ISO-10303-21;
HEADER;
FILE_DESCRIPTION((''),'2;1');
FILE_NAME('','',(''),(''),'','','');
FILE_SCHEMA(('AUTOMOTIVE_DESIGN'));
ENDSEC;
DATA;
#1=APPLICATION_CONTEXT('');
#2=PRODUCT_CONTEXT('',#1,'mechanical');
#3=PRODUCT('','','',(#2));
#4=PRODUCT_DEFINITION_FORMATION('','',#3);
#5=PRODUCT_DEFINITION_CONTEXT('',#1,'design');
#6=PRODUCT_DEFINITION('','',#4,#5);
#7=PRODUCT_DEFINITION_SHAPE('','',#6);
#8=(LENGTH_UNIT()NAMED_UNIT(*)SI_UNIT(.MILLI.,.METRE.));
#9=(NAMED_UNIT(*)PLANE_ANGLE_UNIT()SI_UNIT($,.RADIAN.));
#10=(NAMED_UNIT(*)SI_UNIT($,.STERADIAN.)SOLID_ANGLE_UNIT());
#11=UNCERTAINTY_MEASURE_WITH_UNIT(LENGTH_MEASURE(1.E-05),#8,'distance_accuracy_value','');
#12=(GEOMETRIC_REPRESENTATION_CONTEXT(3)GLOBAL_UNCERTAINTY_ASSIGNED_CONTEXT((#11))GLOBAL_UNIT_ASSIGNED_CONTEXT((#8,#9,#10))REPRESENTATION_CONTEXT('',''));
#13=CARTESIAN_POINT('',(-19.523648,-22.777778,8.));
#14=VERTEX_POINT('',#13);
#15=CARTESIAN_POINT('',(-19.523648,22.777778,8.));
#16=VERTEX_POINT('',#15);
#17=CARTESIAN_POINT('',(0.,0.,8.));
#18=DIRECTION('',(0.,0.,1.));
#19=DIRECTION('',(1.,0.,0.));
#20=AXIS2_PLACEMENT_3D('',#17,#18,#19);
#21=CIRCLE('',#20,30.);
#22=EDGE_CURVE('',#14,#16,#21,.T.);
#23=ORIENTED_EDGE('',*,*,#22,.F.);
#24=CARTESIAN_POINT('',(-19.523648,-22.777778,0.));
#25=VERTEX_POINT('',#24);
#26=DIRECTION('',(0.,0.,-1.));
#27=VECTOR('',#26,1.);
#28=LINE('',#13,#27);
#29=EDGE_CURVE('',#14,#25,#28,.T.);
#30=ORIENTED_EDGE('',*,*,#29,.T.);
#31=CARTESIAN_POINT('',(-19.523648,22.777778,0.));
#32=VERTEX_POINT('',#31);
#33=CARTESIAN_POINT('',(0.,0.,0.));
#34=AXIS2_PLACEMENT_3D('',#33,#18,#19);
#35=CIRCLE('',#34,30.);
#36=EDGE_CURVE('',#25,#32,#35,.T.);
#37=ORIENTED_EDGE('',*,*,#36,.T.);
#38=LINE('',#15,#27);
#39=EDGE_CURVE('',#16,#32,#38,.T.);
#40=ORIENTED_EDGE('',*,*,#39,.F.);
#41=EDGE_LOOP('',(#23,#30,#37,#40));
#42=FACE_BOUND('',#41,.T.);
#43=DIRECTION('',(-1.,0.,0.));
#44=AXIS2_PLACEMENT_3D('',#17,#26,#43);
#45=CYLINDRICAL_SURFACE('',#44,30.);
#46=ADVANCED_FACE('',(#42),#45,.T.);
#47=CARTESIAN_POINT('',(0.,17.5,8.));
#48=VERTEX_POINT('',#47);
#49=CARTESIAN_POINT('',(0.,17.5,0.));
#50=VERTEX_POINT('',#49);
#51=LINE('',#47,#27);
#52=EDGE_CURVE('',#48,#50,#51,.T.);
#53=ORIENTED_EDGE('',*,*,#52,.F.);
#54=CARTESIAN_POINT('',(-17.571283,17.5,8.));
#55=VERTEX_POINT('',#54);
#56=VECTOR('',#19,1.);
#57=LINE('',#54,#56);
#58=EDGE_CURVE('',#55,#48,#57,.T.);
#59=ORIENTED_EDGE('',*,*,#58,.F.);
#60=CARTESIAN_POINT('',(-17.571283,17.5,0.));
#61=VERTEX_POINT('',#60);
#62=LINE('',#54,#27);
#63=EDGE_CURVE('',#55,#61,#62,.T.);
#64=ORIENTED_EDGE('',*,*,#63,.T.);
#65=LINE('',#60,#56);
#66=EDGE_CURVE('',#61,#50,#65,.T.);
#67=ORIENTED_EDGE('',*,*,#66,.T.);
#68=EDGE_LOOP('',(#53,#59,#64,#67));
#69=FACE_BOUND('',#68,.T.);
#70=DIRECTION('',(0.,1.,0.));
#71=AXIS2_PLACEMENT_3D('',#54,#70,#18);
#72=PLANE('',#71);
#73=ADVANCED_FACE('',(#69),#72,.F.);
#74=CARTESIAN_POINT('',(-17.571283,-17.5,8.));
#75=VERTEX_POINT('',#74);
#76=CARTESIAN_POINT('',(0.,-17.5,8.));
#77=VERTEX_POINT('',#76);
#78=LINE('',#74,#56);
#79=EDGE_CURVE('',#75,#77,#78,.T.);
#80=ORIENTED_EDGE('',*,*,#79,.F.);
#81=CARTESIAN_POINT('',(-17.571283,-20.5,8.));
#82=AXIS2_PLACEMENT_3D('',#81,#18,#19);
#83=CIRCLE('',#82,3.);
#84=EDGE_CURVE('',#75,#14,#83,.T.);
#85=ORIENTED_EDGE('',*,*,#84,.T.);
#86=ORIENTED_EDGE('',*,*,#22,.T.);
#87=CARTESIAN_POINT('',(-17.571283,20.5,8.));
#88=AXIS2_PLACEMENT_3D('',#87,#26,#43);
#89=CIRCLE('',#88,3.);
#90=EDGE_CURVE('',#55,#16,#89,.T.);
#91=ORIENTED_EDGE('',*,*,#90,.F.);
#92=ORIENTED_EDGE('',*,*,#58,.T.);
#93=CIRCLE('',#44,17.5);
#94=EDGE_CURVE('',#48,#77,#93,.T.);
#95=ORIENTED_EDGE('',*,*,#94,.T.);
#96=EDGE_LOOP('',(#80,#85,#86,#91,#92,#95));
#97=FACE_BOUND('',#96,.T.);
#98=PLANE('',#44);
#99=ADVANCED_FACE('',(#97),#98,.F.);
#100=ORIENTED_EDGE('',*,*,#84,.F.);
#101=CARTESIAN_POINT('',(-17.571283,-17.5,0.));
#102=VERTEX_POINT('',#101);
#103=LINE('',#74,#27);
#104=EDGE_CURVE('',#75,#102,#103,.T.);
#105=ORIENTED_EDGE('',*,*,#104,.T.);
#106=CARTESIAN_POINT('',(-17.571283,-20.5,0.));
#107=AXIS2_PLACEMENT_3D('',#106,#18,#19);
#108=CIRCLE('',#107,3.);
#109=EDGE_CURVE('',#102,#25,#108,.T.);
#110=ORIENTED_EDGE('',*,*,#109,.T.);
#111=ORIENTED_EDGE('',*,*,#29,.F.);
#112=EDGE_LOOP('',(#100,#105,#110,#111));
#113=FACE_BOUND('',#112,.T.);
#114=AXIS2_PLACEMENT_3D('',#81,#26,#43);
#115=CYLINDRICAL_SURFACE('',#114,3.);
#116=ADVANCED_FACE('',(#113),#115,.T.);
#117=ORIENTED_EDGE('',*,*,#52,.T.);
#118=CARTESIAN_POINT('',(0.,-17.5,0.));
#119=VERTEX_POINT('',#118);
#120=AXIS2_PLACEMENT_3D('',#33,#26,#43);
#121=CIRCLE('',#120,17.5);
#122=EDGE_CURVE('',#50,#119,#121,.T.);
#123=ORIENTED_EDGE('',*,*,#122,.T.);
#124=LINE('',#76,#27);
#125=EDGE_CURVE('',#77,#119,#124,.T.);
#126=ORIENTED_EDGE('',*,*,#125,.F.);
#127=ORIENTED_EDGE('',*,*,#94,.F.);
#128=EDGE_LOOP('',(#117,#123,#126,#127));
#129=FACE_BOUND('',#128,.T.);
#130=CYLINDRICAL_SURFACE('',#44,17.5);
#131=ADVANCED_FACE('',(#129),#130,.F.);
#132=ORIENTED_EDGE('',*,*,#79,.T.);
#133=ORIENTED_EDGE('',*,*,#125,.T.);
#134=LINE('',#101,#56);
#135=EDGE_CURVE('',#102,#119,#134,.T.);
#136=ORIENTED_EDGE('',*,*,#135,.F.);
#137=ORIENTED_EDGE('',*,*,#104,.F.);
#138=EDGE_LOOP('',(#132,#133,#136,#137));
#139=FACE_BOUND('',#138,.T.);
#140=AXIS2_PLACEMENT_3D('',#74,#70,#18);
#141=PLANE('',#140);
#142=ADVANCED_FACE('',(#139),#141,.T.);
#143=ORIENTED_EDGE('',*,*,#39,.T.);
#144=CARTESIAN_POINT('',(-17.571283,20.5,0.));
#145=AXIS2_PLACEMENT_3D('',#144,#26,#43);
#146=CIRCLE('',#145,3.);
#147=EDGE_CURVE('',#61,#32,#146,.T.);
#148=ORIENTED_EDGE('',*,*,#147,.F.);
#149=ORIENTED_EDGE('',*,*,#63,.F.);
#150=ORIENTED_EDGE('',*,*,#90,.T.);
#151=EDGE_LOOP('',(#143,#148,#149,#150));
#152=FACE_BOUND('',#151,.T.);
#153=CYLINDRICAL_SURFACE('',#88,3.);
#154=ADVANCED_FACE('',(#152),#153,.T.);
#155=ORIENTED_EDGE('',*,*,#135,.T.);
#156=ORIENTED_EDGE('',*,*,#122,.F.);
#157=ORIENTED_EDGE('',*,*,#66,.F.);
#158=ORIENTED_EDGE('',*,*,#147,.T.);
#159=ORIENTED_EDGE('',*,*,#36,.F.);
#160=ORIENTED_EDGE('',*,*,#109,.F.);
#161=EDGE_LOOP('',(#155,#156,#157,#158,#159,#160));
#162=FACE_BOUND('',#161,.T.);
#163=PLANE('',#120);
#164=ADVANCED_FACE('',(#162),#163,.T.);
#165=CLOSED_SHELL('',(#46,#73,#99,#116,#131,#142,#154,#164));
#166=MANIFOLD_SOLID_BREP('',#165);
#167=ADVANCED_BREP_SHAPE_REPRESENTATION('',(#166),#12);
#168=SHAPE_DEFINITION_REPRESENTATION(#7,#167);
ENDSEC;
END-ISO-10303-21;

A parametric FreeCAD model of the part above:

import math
import FreeCAD as App
import Part
import Sketcher

doc = App.newDocument("Part")
body = doc.addObject("PartDesign::Body", "Body")

# Sketch on XY plane
sketch1 = doc.addObject("Sketcher::SketchObject", "Sketch")
body.addObject(sketch1)
sketch1.AttachmentSupport = (doc.XY_Plane, [""])
sketch1.MapMode = "FlatFace"
sketch1.addGeometry(Part.LineSegment(App.Vector(0, -17.5, 0), App.Vector(-17.6, -17.5, 0)), False)
sketch1.addGeometry(Part.ArcOfCircle(Part.Circle(App.Vector(-17.6, -20.5, 0), App.Vector(0, 0, 1), 3), math.radians(90), math.radians(229)), False)
sketch1.addGeometry(Part.ArcOfCircle(Part.Circle(App.Vector(0, 0, 0), App.Vector(0, 0, 1), 30), math.radians(-131), math.radians(131)), False)
sketch1.addGeometry(Part.ArcOfCircle(Part.Circle(App.Vector(-17.6, 20.5, 0), App.Vector(0, 0, 1), 3), math.radians(131), math.radians(270)), False)
sketch1.addGeometry(Part.LineSegment(App.Vector(-17.6, 17.5, 0), App.Vector(0, 17.5, 0)), False)
sketch1.addGeometry(Part.ArcOfCircle(Part.Circle(App.Vector(0, 0, 0), App.Vector(0, 0, 1), 17.5), math.radians(-90), math.radians(90)), False)
sketch1.addConstraint(Sketcher.Constraint("Tangent", 0, 2, 1, 1))
sketch1.addConstraint(Sketcher.Constraint("Tangent", 1, 2, 2, 1))
sketch1.addConstraint(Sketcher.Constraint("Tangent", 2, 2, 3, 1))
sketch1.addConstraint(Sketcher.Constraint("Tangent", 3, 2, 4, 1))
sketch1.addConstraint(Sketcher.Constraint("Tangent", 4, 2, 5, 2))
sketch1.addConstraint(Sketcher.Constraint("Tangent", 5, 1, 0, 1))
sketch1.addConstraint(Sketcher.Constraint("Horizontal", 0))
sketch1.addConstraint(Sketcher.Constraint("Horizontal", 4))
sketch1.addConstraint(Sketcher.Constraint("Coincident", 2, 3, -1, 1))
sketch1.addConstraint(Sketcher.Constraint("Coincident", 5, 3, -1, 1))
sketch1.addConstraint(Sketcher.Constraint("Equal", 1, 3))
sketch1.addConstraint(Sketcher.Constraint("Radius", 1, 3.0))
sketch1.addConstraint(Sketcher.Constraint("Radius", 2, 30.0))
sketch1.addConstraint(Sketcher.Constraint("Radius", 5, 17.5))
pad1 = doc.addObject("PartDesign::Pad", "Pad")
body.addObject(pad1)
pad1.Profile = sketch1
pad1.Length = 8

doc.recompute()
